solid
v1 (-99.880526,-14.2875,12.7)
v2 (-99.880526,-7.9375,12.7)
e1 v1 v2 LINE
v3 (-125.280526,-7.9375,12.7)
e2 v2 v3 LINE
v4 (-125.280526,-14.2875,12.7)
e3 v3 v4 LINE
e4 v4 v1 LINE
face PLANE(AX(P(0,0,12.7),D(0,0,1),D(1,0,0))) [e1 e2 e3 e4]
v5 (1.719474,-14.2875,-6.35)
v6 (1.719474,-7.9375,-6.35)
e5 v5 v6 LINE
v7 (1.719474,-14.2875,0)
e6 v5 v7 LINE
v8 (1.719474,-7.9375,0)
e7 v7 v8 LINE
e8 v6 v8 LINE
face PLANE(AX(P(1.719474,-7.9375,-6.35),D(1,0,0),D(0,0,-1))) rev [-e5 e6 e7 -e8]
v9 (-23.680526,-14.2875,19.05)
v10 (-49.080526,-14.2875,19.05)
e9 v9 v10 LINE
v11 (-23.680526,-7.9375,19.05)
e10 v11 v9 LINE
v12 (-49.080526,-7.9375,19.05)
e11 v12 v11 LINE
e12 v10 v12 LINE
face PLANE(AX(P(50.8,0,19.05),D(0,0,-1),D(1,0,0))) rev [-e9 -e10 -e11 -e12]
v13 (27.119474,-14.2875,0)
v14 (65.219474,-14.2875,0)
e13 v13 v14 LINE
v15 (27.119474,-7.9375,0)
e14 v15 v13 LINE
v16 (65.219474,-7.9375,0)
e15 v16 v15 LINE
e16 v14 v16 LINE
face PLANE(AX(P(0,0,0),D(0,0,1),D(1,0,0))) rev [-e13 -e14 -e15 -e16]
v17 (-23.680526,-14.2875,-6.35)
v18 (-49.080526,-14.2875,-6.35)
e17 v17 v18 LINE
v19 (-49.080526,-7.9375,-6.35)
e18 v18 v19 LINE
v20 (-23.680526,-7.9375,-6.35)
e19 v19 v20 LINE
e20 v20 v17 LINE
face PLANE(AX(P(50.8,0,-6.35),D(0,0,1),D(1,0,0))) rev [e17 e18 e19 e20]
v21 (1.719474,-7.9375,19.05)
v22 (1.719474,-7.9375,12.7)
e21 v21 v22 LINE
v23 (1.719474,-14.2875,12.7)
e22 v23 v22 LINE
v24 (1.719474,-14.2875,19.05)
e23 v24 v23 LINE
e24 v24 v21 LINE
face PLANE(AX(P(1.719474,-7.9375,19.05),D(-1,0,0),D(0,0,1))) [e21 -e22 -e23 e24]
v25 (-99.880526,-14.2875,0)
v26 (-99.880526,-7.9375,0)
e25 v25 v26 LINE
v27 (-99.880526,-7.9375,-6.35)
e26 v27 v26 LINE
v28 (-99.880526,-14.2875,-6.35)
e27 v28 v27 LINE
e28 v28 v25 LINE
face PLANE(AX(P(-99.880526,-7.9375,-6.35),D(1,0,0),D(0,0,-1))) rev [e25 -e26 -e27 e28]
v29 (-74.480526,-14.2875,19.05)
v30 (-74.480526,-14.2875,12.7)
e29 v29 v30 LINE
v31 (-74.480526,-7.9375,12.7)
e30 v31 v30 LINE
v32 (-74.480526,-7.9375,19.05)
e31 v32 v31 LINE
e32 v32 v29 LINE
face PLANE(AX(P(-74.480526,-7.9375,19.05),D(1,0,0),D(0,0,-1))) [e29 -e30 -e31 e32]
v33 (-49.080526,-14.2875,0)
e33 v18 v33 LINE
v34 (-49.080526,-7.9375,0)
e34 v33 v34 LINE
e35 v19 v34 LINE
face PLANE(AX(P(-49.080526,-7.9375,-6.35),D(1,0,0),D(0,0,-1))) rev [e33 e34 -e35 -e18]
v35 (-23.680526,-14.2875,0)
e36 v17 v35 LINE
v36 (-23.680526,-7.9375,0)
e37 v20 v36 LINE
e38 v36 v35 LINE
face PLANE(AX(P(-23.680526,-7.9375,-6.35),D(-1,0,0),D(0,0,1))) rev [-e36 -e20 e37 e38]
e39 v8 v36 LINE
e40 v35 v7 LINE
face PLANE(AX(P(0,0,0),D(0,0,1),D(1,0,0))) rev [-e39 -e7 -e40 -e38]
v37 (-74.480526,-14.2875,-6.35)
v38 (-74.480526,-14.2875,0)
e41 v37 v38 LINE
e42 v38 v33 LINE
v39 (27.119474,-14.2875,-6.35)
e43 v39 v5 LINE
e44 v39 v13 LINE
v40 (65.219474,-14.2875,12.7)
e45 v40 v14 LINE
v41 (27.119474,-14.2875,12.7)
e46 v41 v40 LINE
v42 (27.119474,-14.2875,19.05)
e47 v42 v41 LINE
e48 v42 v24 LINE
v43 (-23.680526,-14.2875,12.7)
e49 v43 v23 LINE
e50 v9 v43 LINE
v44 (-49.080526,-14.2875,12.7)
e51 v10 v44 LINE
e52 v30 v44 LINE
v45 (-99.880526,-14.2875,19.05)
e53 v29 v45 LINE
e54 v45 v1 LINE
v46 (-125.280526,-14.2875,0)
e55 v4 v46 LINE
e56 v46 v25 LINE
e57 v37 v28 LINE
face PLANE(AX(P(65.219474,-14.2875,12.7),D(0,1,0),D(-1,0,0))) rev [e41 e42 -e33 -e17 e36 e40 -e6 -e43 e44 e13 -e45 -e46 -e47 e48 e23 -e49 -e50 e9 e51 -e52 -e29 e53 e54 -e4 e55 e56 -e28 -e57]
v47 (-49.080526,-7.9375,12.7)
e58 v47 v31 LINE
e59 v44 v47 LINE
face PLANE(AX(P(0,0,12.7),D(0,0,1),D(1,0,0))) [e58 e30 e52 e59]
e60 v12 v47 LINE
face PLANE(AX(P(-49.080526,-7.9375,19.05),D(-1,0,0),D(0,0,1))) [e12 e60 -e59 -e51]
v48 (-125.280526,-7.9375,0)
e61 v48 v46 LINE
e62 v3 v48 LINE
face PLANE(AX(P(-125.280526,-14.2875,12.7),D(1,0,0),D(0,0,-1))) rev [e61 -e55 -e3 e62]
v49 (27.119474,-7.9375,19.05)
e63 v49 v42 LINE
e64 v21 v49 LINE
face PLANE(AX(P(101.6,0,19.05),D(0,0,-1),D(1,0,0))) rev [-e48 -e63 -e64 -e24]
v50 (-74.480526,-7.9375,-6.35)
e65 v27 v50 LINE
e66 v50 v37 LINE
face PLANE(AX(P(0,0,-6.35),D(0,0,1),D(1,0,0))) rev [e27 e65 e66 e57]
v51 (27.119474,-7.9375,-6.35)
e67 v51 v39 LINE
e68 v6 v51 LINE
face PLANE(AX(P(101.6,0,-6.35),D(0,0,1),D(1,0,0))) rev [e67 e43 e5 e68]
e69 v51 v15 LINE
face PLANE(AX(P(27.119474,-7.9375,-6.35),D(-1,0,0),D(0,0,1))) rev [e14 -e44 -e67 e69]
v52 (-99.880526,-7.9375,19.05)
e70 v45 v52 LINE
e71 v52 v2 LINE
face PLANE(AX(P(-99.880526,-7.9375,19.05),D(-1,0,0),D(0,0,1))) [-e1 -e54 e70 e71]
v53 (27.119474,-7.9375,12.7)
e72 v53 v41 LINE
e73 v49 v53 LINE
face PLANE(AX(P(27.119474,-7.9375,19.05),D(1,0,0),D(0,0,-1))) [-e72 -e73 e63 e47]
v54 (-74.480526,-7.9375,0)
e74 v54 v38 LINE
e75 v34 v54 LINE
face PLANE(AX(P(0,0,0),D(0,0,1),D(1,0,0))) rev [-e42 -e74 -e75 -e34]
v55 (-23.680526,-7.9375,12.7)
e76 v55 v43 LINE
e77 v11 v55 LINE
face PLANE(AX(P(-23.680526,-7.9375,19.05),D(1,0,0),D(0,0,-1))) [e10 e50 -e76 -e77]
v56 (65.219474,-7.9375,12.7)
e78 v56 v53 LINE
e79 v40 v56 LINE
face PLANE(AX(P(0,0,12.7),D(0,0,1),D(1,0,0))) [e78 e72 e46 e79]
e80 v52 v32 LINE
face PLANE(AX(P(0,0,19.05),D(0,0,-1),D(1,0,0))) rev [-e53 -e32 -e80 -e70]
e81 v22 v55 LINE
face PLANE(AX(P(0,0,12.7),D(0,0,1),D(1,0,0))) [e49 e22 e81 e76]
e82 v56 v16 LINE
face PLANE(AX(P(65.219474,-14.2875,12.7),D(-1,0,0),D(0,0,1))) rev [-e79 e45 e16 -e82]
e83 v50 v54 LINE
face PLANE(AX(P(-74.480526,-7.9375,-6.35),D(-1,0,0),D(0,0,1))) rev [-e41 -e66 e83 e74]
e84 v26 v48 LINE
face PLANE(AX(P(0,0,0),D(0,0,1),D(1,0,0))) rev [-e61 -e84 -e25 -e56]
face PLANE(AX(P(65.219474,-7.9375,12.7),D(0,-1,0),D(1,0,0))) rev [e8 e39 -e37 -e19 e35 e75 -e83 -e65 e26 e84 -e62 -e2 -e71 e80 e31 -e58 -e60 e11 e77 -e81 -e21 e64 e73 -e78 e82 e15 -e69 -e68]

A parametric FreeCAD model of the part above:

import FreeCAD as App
import Part
import Sketcher
from FreeCAD import Vector
Q = App.Units.Quantity


def add_polygon(sketch, points):
    """Adds a closed chain of lines whose ends are joined by coincident constraints."""
    first, n = sketch.GeometryCount, len(points)
    for a, b in zip(points, points[1:] + points[:1]):
        sketch.addGeometry(Part.LineSegment(App.Vector(*a, 0), App.Vector(*b, 0)), False)
    for i in range(n):
        sketch.addConstraint(Sketcher.Constraint("Coincident", first + i, 2, first + (i + 1) % n, 1))

doc = App.newDocument("Part")
body = doc.addObject("PartDesign::Body", "Body")

# Sketch on XY plane
sketch1 = body.newObject("Sketcher::SketchObject", "Sketch")
sketch1.AttachmentSupport = (doc.getObject("XY_Plane"), [""])
sketch1.MapMode = "FlatFace"
add_polygon(sketch1, [(-125, -8), (-125, -14), (65, -14), (65, -8)])  # lines 0-3
sketch1.addConstraint(Sketcher.Constraint("Vertical", 0))
sketch1.addConstraint(Sketcher.Constraint("Horizontal", 1))
sketch1.addConstraint(Sketcher.Constraint("Vertical", 2))
sketch1.addConstraint(Sketcher.Constraint("Horizontal", 3))
sketch1.addConstraint(Sketcher.Constraint("DistanceX", 1, 1, 1, 2, Q("7.5 in")))
sketch1.addConstraint(Sketcher.Constraint("DistanceY", 0, 2, 0, 1, Q("0.25 in")))
sketch1.addConstraint(Sketcher.Constraint("DistanceY", 0, 2, -1, 1, Q("0.5625 in")))
sketch1.addConstraint(Sketcher.Constraint("DistanceX", 0, 2, -1, 1, Q("125.280526 mm")))
pad1 = body.newObject("PartDesign::Pad", "Pad")
pad1.Profile = sketch1
pad1.Length = Q("0.5 in")

# Sketch on XY plane
sketch2 = body.newObject("Sketcher::SketchObject", "Sketch001")
sketch2.AttachmentSupport = (doc.getObject("XY_Plane"), [""])
sketch2.MapMode = "FlatFace"
add_polygon(sketch2, [(-74, -8), (-74, -14), (-100, -14), (-100, -8)])  # lines 0-3
sketch2.addConstraint(Sketcher.Constraint("Vertical", 0))
sketch2.addConstraint(Sketcher.Constraint("Horizontal", 1))
sketch2.addConstraint(Sketcher.Constraint("Vertical", 2))
sketch2.addConstraint(Sketcher.Constraint("Horizontal", 3))
sketch2.addConstraint(Sketcher.Constraint("DistanceX", 1, 2, 1, 1, Q("1 in")))
sketch2.addConstraint(Sketcher.Constraint("DistanceY", 0, 2, 0, 1, Q("0.25 in")))
sketch2.addConstraint(Sketcher.Constraint("DistanceY", 0, 2, -1, 1, Q("0.5625 in")))
sketch2.addConstraint(Sketcher.Constraint("DistanceX", 0, 2, -1, 1, Q("74.480526 mm")))
pad2 = body.newObject("PartDesign::Pad", "Pad001")
pad2.Profile = sketch2
pad2.Length = Q("0.25 in")
pad2.Reversed = True
doc.recompute()

linearpattern = body.newObject("PartDesign::LinearPattern", "LinearPattern")
linearpattern.Originals = [pad2]
linearpattern.Direction = (doc.getObject("X_Axis"), [""])
linearpattern.Mode = "offset"
linearpattern.Offset = Q("2 in")
linearpattern.Occurrences = 3
body.Tip = linearpattern
doc.recompute()

datumplane = body.newObject("PartDesign::Plane", "DatumPlane")
datumplane.AttachmentSupport = (doc.getObject("XY_Plane"), [""])
datumplane.MapMode = "FlatFace"
datumplane.AttachmentOffset = App.Placement(Vector(0, 0, 0.25 * 25.4), App.Rotation())
mirrored = body.newObject("PartDesign::Mirrored", "Mirrored")
mirrored.Originals = [pad2]
mirrored.MirrorPlane = (datumplane, [""])
body.Tip = mirrored

# Sketch on XY plane
sketch3 = body.newObject("Sketcher::SketchObject", "Sketch002")
sketch3.AttachmentSupport = (doc.getObject("XY_Plane"), [""])
sketch3.MapMode = "FlatFace"
sketch3.AttachmentOffset = App.Placement(Vector(0, 0, 0.5 * 25.4), App.Rotation())
add_polygon(sketch3, [(-24, -14), (-24, -8), (-49, -8), (-49, -14)])  # lines 0-3
sketch3.addConstraint(Sketcher.Constraint("Vertical", 0))
sketch3.addConstraint(Sketcher.Constraint("Horizontal", 1))
sketch3.addConstraint(Sketcher.Constraint("Vertical", 2))
sketch3.addConstraint(Sketcher.Constraint("Horizontal", 3))
sketch3.addConstraint(Sketcher.Constraint("DistanceX", 1, 2, 1, 1, Q("1 in")))
sketch3.addConstraint(Sketcher.Constraint("DistanceY", 0, 1, 0, 2, Q("0.25 in")))
sketch3.addConstraint(Sketcher.Constraint("DistanceY", 0, 2, -1, 1, Q("0.3125 in")))
sketch3.addConstraint(Sketcher.Constraint("DistanceX", 0, 2, -1, 1, Q("23.680526 mm")))
pad3 = body.newObject("PartDesign::Pad", "Pad002")
pad3.Profile = sketch3
pad3.Length = Q("0.25 in")

# Sketch on XY plane
sketch4 = body.newObject("Sketcher::SketchObject", "Sketch003")
sketch4.AttachmentSupport = (doc.getObject("XY_Plane"), [""])
sketch4.MapMode = "FlatFace"
sketch4.AttachmentOffset = App.Placement(Vector(0, 0, 0.5 * 25.4), App.Rotation())
add_polygon(sketch4, [(27, -14), (27, -8), (2, -8), (2, -14)])  # lines 0-3
sketch4.addConstraint(Sketcher.Constraint("Vertical", 0))
sketch4.addConstraint(Sketcher.Constraint("Horizontal", 1))
sketch4.addConstraint(Sketcher.Constraint("Vertical", 2))
sketch4.addConstraint(Sketcher.Constraint("Horizontal", 3))
sketch4.addConstraint(Sketcher.Constraint("DistanceX", 1, 2, 1, 1, Q("1 in")))
sketch4.addConstraint(Sketcher.Constraint("DistanceY", 0, 1, 0, 2, Q("0.25 in")))
sketch4.addConstraint(Sketcher.Constraint("DistanceY", 0, 2, -1, 1, Q("0.3125 in")))
sketch4.addConstraint(Sketcher.Constraint("DistanceX", -1, 1, 0, 2, Q("27.119474 mm")))
pad4 = body.newObject("PartDesign::Pad", "Pad003")
pad4.Profile = sketch4
pad4.Length = Q("0.25 in")

doc.recompute()
